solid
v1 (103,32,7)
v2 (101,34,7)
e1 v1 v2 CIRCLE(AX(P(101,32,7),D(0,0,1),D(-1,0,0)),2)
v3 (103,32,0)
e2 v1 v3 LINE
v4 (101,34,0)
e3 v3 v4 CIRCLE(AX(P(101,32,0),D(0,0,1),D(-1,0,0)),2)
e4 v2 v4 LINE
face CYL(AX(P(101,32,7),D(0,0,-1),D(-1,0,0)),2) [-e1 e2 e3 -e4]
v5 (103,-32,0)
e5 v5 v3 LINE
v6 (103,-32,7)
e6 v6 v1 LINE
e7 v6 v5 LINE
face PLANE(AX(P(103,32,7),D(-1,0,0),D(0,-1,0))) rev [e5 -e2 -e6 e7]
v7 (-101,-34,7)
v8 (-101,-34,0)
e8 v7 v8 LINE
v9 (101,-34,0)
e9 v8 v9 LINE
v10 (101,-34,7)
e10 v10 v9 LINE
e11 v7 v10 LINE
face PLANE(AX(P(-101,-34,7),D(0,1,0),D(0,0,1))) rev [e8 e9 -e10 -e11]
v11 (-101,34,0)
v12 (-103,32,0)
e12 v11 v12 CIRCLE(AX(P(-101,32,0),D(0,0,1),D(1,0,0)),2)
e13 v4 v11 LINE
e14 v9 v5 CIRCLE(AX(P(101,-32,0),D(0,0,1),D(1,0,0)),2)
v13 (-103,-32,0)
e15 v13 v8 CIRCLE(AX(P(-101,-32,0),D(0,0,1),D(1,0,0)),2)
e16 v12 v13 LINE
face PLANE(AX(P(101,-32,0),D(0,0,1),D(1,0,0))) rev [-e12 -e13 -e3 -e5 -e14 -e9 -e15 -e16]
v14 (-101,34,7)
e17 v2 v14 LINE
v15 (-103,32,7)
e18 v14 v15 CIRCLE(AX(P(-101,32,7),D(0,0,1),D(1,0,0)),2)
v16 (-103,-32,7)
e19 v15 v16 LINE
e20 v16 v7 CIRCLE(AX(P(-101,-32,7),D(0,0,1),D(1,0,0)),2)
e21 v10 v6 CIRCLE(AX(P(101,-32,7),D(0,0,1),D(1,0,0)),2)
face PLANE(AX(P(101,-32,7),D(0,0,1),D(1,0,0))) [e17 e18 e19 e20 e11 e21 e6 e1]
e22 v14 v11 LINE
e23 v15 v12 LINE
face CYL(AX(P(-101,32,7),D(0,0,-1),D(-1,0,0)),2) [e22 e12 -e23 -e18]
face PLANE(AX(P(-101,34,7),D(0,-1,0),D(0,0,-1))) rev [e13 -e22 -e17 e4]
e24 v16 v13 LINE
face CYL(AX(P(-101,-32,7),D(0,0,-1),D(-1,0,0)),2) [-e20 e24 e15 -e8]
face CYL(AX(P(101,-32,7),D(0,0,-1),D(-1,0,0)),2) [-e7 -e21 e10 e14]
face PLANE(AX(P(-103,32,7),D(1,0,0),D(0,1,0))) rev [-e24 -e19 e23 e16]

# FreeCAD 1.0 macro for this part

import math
import FreeCAD as App
import Part
import Sketcher

doc = App.newDocument("Part")
body = doc.addObject("PartDesign::Body", "Body")

sketch1 = doc.addObject("Sketcher::SketchObject", "Sketch")
body.addObject(sketch1)
sketch1.AttachmentSupport = (doc.XY_Plane, [""])
sketch1.MapMode = "FlatFace"
sketch1.addGeometry([
    Part.LineSegment(App.Vector(101, 34, 0), App.Vector(-101, 34, 0)),
    Part.ArcOfCircle(Part.Circle(App.Vector(-101, 32, 0), App.Vector(0, 0, 1), 2), math.radians(90), math.radians(180)),
    Part.LineSegment(App.Vector(-103, 32, 0), App.Vector(-103, -32, 0)),
    Part.ArcOfCircle(Part.Circle(App.Vector(-101, -32, 0), App.Vector(0, 0, 1), 2), math.radians(-180), math.radians(-90)),
    Part.LineSegment(App.Vector(-101, -34, 0), App.Vector(101, -34, 0)),
    Part.ArcOfCircle(Part.Circle(App.Vector(101, -32, 0), App.Vector(0, 0, 1), 2), math.radians(-90), math.radians(0)),
    Part.LineSegment(App.Vector(103, -32, 0), App.Vector(103, 32, 0)),
    Part.ArcOfCircle(Part.Circle(App.Vector(101, 32, 0), App.Vector(0, 0, 1), 2), math.radians(0), math.radians(90)),
], False)
sketch1.addConstraint([
    Sketcher.Constraint("Tangent", 0, 2, 1, 1),
    Sketcher.Constraint("Tangent", 1, 2, 2, 1),
    Sketcher.Constraint("Tangent", 2, 2, 3, 1),
    Sketcher.Constraint("Tangent", 3, 2, 4, 1),
    Sketcher.Constraint("Tangent", 4, 2, 5, 1),
    Sketcher.Constraint("Tangent", 5, 2, 6, 1),
    Sketcher.Constraint("Tangent", 6, 2, 7, 1),
    Sketcher.Constraint("Tangent", 7, 2, 0, 1),
    Sketcher.Constraint("Horizontal", 0),
    Sketcher.Constraint("Vertical", 2),
    Sketcher.Constraint("Horizontal", 4),
    Sketcher.Constraint("Vertical", 6),
    Sketcher.Constraint("Equal", 1, 3),
    Sketcher.Constraint("Equal", 3, 5),
    Sketcher.Constraint("Equal", 5, 7),
    Sketcher.Constraint("Symmetric", 1, 3, 5, 3, -1, 1),
    Sketcher.Constraint("Radius", 1, 2.0),
    Sketcher.Constraint("DistanceX", 0, 2, 0, 1, 202.0),
    Sketcher.Constraint("DistanceY", 2, 2, 2, 1, 64.0),
])
pad1 = doc.addObject("PartDesign::Pad", "Pad")
body.addObject(pad1)
pad1.Profile = sketch1
pad1.Length = 7

doc.recompute()
